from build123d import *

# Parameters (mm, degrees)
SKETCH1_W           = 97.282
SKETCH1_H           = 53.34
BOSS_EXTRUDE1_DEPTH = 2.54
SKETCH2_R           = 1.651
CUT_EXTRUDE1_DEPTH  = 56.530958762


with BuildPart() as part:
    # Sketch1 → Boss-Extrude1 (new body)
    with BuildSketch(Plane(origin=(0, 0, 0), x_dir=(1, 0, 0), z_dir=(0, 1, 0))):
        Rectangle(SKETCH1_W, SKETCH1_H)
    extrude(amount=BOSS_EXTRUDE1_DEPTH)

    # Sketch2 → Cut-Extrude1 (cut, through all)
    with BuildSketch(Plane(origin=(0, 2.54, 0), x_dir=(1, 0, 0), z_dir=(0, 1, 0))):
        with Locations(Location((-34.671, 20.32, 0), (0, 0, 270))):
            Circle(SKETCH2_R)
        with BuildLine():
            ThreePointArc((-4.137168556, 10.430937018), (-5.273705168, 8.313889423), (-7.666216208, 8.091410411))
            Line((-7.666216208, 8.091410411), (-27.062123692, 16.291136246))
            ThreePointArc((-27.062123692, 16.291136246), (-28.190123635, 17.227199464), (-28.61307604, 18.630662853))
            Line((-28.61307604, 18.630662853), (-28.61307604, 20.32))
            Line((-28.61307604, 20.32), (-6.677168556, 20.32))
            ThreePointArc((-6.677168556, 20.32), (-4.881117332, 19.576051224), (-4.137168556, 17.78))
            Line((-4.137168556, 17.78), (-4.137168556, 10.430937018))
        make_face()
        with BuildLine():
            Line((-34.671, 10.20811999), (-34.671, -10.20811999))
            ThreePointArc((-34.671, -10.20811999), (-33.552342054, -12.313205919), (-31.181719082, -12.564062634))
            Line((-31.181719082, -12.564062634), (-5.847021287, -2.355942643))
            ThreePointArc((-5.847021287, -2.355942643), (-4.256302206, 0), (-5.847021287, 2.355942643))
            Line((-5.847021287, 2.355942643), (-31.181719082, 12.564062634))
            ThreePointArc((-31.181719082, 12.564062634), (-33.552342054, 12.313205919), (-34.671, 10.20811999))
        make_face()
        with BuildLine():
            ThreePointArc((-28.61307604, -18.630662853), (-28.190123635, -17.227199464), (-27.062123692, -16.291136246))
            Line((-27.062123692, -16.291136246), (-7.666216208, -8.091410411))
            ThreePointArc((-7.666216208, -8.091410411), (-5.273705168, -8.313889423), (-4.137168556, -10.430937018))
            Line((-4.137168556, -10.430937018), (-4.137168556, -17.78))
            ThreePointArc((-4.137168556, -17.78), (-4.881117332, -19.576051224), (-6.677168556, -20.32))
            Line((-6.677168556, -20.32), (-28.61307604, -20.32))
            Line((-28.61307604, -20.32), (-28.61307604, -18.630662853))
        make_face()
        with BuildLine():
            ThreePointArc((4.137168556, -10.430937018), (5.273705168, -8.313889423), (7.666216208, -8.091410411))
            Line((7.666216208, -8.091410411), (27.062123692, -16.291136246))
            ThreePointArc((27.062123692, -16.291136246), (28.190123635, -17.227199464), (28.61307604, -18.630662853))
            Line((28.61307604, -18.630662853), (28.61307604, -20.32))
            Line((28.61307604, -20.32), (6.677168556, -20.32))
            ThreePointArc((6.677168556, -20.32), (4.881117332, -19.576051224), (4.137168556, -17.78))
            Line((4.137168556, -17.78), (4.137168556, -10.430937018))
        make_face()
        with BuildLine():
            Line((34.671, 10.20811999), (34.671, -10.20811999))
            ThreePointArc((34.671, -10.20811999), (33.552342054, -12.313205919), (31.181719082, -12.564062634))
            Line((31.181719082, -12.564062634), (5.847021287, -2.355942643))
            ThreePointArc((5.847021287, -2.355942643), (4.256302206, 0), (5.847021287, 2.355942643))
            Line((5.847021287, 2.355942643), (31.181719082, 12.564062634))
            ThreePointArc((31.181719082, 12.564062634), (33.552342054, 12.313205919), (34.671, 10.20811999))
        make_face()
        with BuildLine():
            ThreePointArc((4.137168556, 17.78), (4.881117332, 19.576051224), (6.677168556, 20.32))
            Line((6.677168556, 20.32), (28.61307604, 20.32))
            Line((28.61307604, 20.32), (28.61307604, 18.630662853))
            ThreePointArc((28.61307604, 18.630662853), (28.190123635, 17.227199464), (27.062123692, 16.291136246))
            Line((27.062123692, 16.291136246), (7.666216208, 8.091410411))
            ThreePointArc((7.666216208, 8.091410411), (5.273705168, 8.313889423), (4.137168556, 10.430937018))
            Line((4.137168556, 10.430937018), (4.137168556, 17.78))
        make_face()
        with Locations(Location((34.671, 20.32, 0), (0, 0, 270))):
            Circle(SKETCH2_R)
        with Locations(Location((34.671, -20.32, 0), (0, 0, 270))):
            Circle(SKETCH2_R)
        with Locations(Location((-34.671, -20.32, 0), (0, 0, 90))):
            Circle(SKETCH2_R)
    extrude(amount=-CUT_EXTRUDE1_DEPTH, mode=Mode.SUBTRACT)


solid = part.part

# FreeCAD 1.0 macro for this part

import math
import FreeCAD as App
import Part
import Sketcher
Q = App.Units.Quantity

doc = App.newDocument("Part")
body = doc.addObject("PartDesign::Body", "Body")

sketch1 = body.newObject("Sketcher::SketchObject", "Sketch")
sketch1.AttachmentSupport = (doc.getObject("XZ_Plane"), [""])
sketch1.MapMode = "FlatFace"
sketch1.addGeometry(Part.LineSegment(App.Vector(-49, -27, 0), App.Vector(-49, 27, 0)), False)
sketch1.addGeometry(Part.LineSegment(App.Vector(-49, 27, 0), App.Vector(49, 27, 0)), False)
sketch1.addGeometry(Part.LineSegment(App.Vector(49, 27, 0), App.Vector(49, -27, 0)), False)
sketch1.addGeometry(Part.LineSegment(App.Vector(49, -27, 0), App.Vector(-49, -27, 0)), False)
sketch1.addConstraint(Sketcher.Constraint("Coincident", 0, 2, 1, 1))
sketch1.addConstraint(Sketcher.Constraint("Coincident", 1, 2, 2, 1))
sketch1.addConstraint(Sketcher.Constraint("Coincident", 2, 2, 3, 1))
sketch1.addConstraint(Sketcher.Constraint("Coincident", 3, 2, 0, 1))
sketch1.addConstraint(Sketcher.Constraint("Vertical", 0))
sketch1.addConstraint(Sketcher.Constraint("Horizontal", 1))
sketch1.addConstraint(Sketcher.Constraint("Vertical", 2))
sketch1.addConstraint(Sketcher.Constraint("Horizontal", 3))
sketch1.addConstraint(Sketcher.Constraint("Symmetric", 0, 2, 2, 2, -1, 1))
sketch1.addConstraint(Sketcher.Constraint("DistanceY", 0, 1, 0, 2, Q("2.1 in")))
sketch1.addConstraint(Sketcher.Constraint("DistanceX", 1, 1, 1, 2, Q("3.83 in")))
pad1 = body.newObject("PartDesign::Pad", "Pad")
pad1.Profile = sketch1
pad1.Length = Q("0.1 in")
pad1.Reversed = True

sketch2 = body.newObject("Sketcher::SketchObject", "Sketch001")
sketch2.AttachmentSupport = (doc.getObject("XZ_Plane"), [""])
sketch2.MapMode = "FlatFace"
sketch2.AttachmentOffset = App.Placement(App.Vector(0, 0, -0.1 * 25.4), App.Rotation())
sketch2.addGeometry(Part.Circle(App.Vector(-34.7, -20.3, 0), App.Vector(0, 0, 1), 1.7), False)
sketch2.addGeometry(Part.ArcOfCircle(Part.Circle(App.Vector(-6.7, -10.4, 0), App.Vector(0, 0, 1), 2.5), math.radians(0), math.radians(113)), False)
sketch2.addGeometry(Part.LineSegment(App.Vector(-4.1, -10.4, 0), App.Vector(-4.1, -17.8, 0)), False)
sketch2.addGeometry(Part.ArcOfCircle(Part.Circle(App.Vector(-6.7, -17.8, 0), App.Vector(0, 0, 1), 2.5), math.radians(-90), math.radians(0)), False)
sketch2.addGeometry(Part.LineSegment(App.Vector(-6.7, -20.3, 0), App.Vector(-28.6, -20.3, 0)), False)
sketch2.addGeometry(Part.LineSegment(App.Vector(-28.6, -20.3, 0), App.Vector(-28.6, -18.6, 0)), False)
sketch2.addGeometry(Part.ArcOfCircle(Part.Circle(App.Vector(-26.1, -18.6, 0), App.Vector(0, 0, 1), 2.5), math.radians(113), math.radians(180)), False)
sketch2.addGeometry(Part.LineSegment(App.Vector(-27.1, -16.3, 0), App.Vector(-7.7, -8.1, 0)), False)
sketch2.addGeometry(Part.LineSegment(App.Vector(-34.7, -10.2, 0), App.Vector(-34.7, 10.2, 0)), False)
sketch2.addGeometry(Part.ArcOfCircle(Part.Circle(App.Vector(-32.1, 10.2, 0), App.Vector(0, 0, 1), 2.5), math.radians(68), math.radians(180)), False)
sketch2.addGeometry(Part.LineSegment(App.Vector(-31.2, 12.6, 0), App.Vector(-5.8, 2.4, 0)), False)
sketch2.addGeometry(Part.ArcOfCircle(Part.Circle(App.Vector(-6.8, 0, 0), App.Vector(0, 0, 1), 2.5), math.radians(-68), math.radians(68)), False)
sketch2.addGeometry(Part.LineSegment(App.Vector(-5.8, -2.4, 0), App.Vector(-31.2, -12.6, 0)), False)
sketch2.addGeometry(Part.ArcOfCircle(Part.Circle(App.Vector(-32.1, -10.2, 0), App.Vector(0, 0, 1), 2.5), math.radians(180), math.radians(292)), False)
sketch2.addGeometry(Part.ArcOfCircle(Part.Circle(App.Vector(-26.1, 18.6, 0), App.Vector(0, 0, 1), 2.5), math.radians(180), math.radians(247)), False)
sketch2.addGeometry(Part.LineSegment(App.Vector(-28.6, 18.6, 0), App.Vector(-28.6, 20.3, 0)), False)
sketch2.addGeometry(Part.LineSegment(App.Vector(-28.6, 20.3, 0), App.Vector(-6.7, 20.3, 0)), False)
sketch2.addGeometry(Part.ArcOfCircle(Part.Circle(App.Vector(-6.7, 17.8, 0), App.Vector(0, 0, 1), 2.5), math.radians(0), math.radians(90)), False)
sketch2.addGeometry(Part.LineSegment(App.Vector(-4.1, 17.8, 0), App.Vector(-4.1, 10.4, 0)), False)
sketch2.addGeometry(Part.ArcOfCircle(Part.Circle(App.Vector(-6.7, 10.4, 0), App.Vector(0, 0, 1), 2.5), math.radians(-113), math.radians(0)), False)
sketch2.addGeometry(Part.LineSegment(App.Vector(-7.7, 8.1, 0), App.Vector(-27.1, 16.3, 0)), False)
sketch2.addGeometry(Part.ArcOfCircle(Part.Circle(App.Vector(6.7, 10.4, 0), App.Vector(0, 0, 1), 2.5), math.radians(180), math.radians(293)), False)
sketch2.addGeometry(Part.LineSegment(App.Vector(4.1, 10.4, 0), App.Vector(4.1, 17.8, 0)), False)
sketch2.addGeometry(Part.ArcOfCircle(Part.Circle(App.Vector(6.7, 17.8, 0), App.Vector(0, 0, 1), 2.5), math.radians(90), math.radians(180)), False)
sketch2.addGeometry(Part.LineSegment(App.Vector(6.7, 20.3, 0), App.Vector(28.6, 20.3, 0)), False)
sketch2.addGeometry(Part.LineSegment(App.Vector(28.6, 20.3, 0), App.Vector(28.6, 18.6, 0)), False)
sketch2.addGeometry(Part.ArcOfCircle(Part.Circle(App.Vector(26.1, 18.6, 0), App.Vector(0, 0, 1), 2.5), math.radians(-67), math.radians(0)), False)
sketch2.addGeometry(Part.LineSegment(App.Vector(27.1, 16.3, 0), App.Vector(7.7, 8.1, 0)), False)
sketch2.addGeometry(Part.LineSegment(App.Vector(34.7, 10.2, 0), App.Vector(34.7, -10.2, 0)), False)
sketch2.addGeometry(Part.ArcOfCircle(Part.Circle(App.Vector(32.1, -10.2, 0), App.Vector(0, 0, 1), 2.5), math.radians(-112), math.radians(0)), False)
sketch2.addGeometry(Part.LineSegment(App.Vector(31.2, -12.6, 0), App.Vector(5.8, -2.4, 0)), False)
sketch2.addGeometry(Part.ArcOfCircle(Part.Circle(App.Vector(6.8, 0, 0), App.Vector(0, 0, 1), 2.5), math.radians(112), math.radians(248)), False)
sketch2.addGeometry(Part.LineSegment(App.Vector(5.8, 2.4, 0), App.Vector(31.2, 12.6, 0)), False)
sketch2.addGeometry(Part.ArcOfCircle(Part.Circle(App.Vector(32.1, 10.2, 0), App.Vector(0, 0, 1), 2.5), math.radians(0), math.radians(112)), False)
sketch2.addGeometry(Part.ArcOfCircle(Part.Circle(App.Vector(6.7, -17.8, 0), App.Vector(0, 0, 1), 2.5), math.radians(-180), math.radians(-90)), False)
sketch2.addGeometry(Part.LineSegment(App.Vector(4.1, -17.8, 0), App.Vector(4.1, -10.4, 0)), False)
sketch2.addGeometry(Part.ArcOfCircle(Part.Circle(App.Vector(6.7, -10.4, 0), App.Vector(0, 0, 1), 2.5), math.radians(67), math.radians(180)), False)
sketch2.addGeometry(Part.LineSegment(App.Vector(7.7, -8.1, 0), App.Vector(27.1, -16.3, 0)), False)
sketch2.addGeometry(Part.ArcOfCircle(Part.Circle(App.Vector(26.1, -18.6, 0), App.Vector(0, 0, 1), 2.5), math.radians(0), math.radians(67)), False)
sketch2.addGeometry(Part.LineSegment(App.Vector(28.6, -18.6, 0), App.Vector(28.6, -20.3, 0)), False)
sketch2.addGeometry(Part.LineSegment(App.Vector(28.6, -20.3, 0), App.Vector(6.7, -20.3, 0)), False)
sketch2.addGeometry(Part.Circle(App.Vector(34.7, -20.3, 0), App.Vector(0, 0, 1), 1.7), False)
sketch2.addGeometry(Part.Circle(App.Vector(34.7, 20.3, 0), App.Vector(0, 0, 1), 1.7), False)
sketch2.addGeometry(Part.Circle(App.Vector(-34.7, 20.3, 0), App.Vector(0, 0, 1), 1.7), False)
sketch2.addConstraint(Sketcher.Constraint("Tangent", 1, 1, 2, 1))
sketch2.addConstraint(Sketcher.Constraint("Tangent", 2, 2, 3, 2))
sketch2.addConstraint(Sketcher.Constraint("Tangent", 3, 1, 4, 1))
sketch2.addConstraint(Sketcher.Constraint("Coincident", 4, 2, 5, 1))
sketch2.addConstraint(Sketcher.Constraint("Tangent", 5, 2, 6, 2))
sketch2.addConstraint(Sketcher.Constraint("Tangent", 6, 1, 7, 1))
sketch2.addConstraint(Sketcher.Constraint("Tangent", 7, 2, 1, 2))
sketch2.addConstraint(Sketcher.Constraint("Tangent", 8, 2, 9, 2))
sketch2.addConstraint(Sketcher.Constraint("Tangent", 9, 1, 10, 1))
sketch2.addConstraint(Sketcher.Constraint("Tangent", 10, 2, 11, 2))
sketch2.addConstraint(Sketcher.Constraint("Tangent", 11, 1, 12, 1))
sketch2.addConstraint(Sketcher.Constraint("Tangent", 12, 2, 13, 2))
sketch2.addConstraint(Sketcher.Constraint("Tangent", 13, 1, 8, 1))
sketch2.addConstraint(Sketcher.Constraint("Tangent", 14, 1, 15, 1))
sketch2.addConstraint(Sketcher.Constraint("Coincident", 15, 2, 16, 1))
sketch2.addConstraint(Sketcher.Constraint("Tangent", 16, 2, 17, 2))
sketch2.addConstraint(Sketcher.Constraint("Tangent", 17, 1, 18, 1))
sketch2.addConstraint(Sketcher.Constraint("Tangent", 18, 2, 19, 2))
sketch2.addConstraint(Sketcher.Constraint("Tangent", 19, 1, 20, 1))
sketch2.addConstraint(Sketcher.Constraint("Tangent", 20, 2, 14, 2))
sketch2.addConstraint(Sketcher.Constraint("Tangent", 21, 1, 22, 1))
sketch2.addConstraint(Sketcher.Constraint("Tangent", 22, 2, 23, 2))
sketch2.addConstraint(Sketcher.Constraint("Tangent", 23, 1, 24, 1))
sketch2.addConstraint(Sketcher.Constraint("Coincident", 24, 2, 25, 1))
sketch2.addConstraint(Sketcher.Constraint("Tangent", 25, 2, 26, 2))
sketch2.addConstraint(Sketcher.Constraint("Tangent", 26, 1, 27, 1))
sketch2.addConstraint(Sketcher.Constraint("Tangent", 27, 2, 21, 2))
sketch2.addConstraint(Sketcher.Constraint("Tangent", 28, 2, 29, 2))
sketch2.addConstraint(Sketcher.Constraint("Tangent", 29, 1, 30, 1))
sketch2.addConstraint(Sketcher.Constraint("Tangent", 30, 2, 31, 2))
sketch2.addConstraint(Sketcher.Constraint("Tangent", 31, 1, 32, 1))
sketch2.addConstraint(Sketcher.Constraint("Tangent", 32, 2, 33, 2))
sketch2.addConstraint(Sketcher.Constraint("Tangent", 33, 1, 28, 1))
sketch2.addConstraint(Sketcher.Constraint("Tangent", 34, 1, 35, 1))
sketch2.addConstraint(Sketcher.Constraint("Tangent", 35, 2, 36, 2))
sketch2.addConstraint(Sketcher.Constraint("Tangent", 36, 1, 37, 1))
sketch2.addConstraint(Sketcher.Constraint("Tangent", 37, 2, 38, 2))
sketch2.addConstraint(Sketcher.Constraint("Tangent", 38, 1, 39, 1))
sketch2.addConstraint(Sketcher.Constraint("Coincident", 39, 2, 40, 1))
sketch2.addConstraint(Sketcher.Constraint("Tangent", 40, 2, 34, 2))
sketch2.addConstraint(Sketcher.Constraint("Vertical", 2))
sketch2.addConstraint(Sketcher.Constraint("Horizontal", 4))
sketch2.addConstraint(Sketcher.Constraint("Vertical", 5))
sketch2.addConstraint(Sketcher.Constraint("Vertical", 8))
sketch2.addConstraint(Sketcher.Constraint("Vertical", 15))
sketch2.addConstraint(Sketcher.Constraint("Horizontal", 16))
sketch2.addConstraint(Sketcher.Constraint("Vertical", 18))
sketch2.addConstraint(Sketcher.Constraint("Vertical", 22))
sketch2.addConstraint(Sketcher.Constraint("Horizontal", 24))
sketch2.addConstraint(Sketcher.Constraint("Vertical", 25))
sketch2.addConstraint(Sketcher.Constraint("Vertical", 28))
sketch2.addConstraint(Sketcher.Constraint("Vertical", 35))
sketch2.addConstraint(Sketcher.Constraint("Vertical", 39))
sketch2.addConstraint(Sketcher.Constraint("Horizontal", 40))
sketch2.addConstraint(Sketcher.Constraint("Equal", 1, 3))
sketch2.addConstraint(Sketcher.Constraint("Equal", 3, 6))
sketch2.addConstraint(Sketcher.Constraint("Equal", 6, 9))
sketch2.addConstraint(Sketcher.Constraint("Equal", 9, 11))
sketch2.addConstraint(Sketcher.Constraint("Equal", 11, 13))
sketch2.addConstraint(Sketcher.Constraint("Equal", 13, 14))
sketch2.addConstraint(Sketcher.Constraint("Equal", 14, 17))
sketch2.addConstraint(Sketcher.Constraint("Equal", 17, 19))
sketch2.addConstraint(Sketcher.Constraint("Equal", 19, 21))
sketch2.addConstraint(Sketcher.Constraint("Equal", 21, 23))
sketch2.addConstraint(Sketcher.Constraint("Equal", 23, 26))
sketch2.addConstraint(Sketcher.Constraint("Equal", 26, 29))
sketch2.addConstraint(Sketcher.Constraint("Equal", 29, 31))
sketch2.addConstraint(Sketcher.Constraint("Equal", 31, 33))
sketch2.addConstraint(Sketcher.Constraint("Equal", 33, 34))
sketch2.addConstraint(Sketcher.Constraint("Equal", 34, 36))
sketch2.addConstraint(Sketcher.Constraint("Equal", 36, 38))
sketch2.addConstraint(Sketcher.Constraint("Equal", 0, 41))
sketch2.addConstraint(Sketcher.Constraint("Equal", 41, 42))
sketch2.addConstraint(Sketcher.Constraint("Equal", 42, 43))
sketch2.addConstraint(Sketcher.Constraint("Symmetric", 1, 3, 21, 3, -1, 1))
sketch2.addConstraint(Sketcher.Constraint("Symmetric", 6, 3, 26, 3, -1, 1))
sketch2.addConstraint(Sketcher.Constraint("Symmetric", 9, 3, 29, 3, -1, 1))
sketch2.addConstraint(Sketcher.Constraint("Symmetric", 11, 3, 31, 3, -1, 1))
sketch2.addConstraint(Sketcher.Constraint("Symmetric", 17, 3, 34, 3, -1, 1))
sketch2.addConstraint(Sketcher.Constraint("Symmetric", 14, 3, 38, 3, -1, 1))
sketch2.addConstraint(Sketcher.Constraint("Symmetric", 0, 3, 42, 3, -1, 1))
sketch2.addConstraint(Sketcher.Constraint("Symmetric", 41, 3, 43, 3, -1, 1))
sketch2.addConstraint(Sketcher.Constraint("Symmetric", 19, 3, 21, 3, -2))
sketch2.addConstraint(Sketcher.Constraint("Symmetric", 14, 3, 26, 3, -2))
sketch2.addConstraint(Sketcher.Constraint("Symmetric", 0, 3, 41, 3, -2))
sketch2.addConstraint(Sketcher.Constraint("Symmetric", 12, 2, 29, 1, -2))
sketch2.addConstraint(Sketcher.Constraint("Parallel", 12, 32))
sketch2.addConstraint(Sketcher.Constraint("Parallel", 20, 37))
sketch2.addConstraint(Sketcher.Constraint("Horizontal", 17, 3, 23, 3))
sketch2.addConstraint(Sketcher.Constraint("Horizontal", 3, 3, 34, 3))
sketch2.addConstraint(Sketcher.Constraint("Horizontal", 41, 3, 3, 1))
sketch2.addConstraint(Sketcher.Constraint("Vertical", 43, 3, 8, 2))
sketch2.addConstraint(Sketcher.Constraint("Radius", 1, Q("0.1 in")))
sketch2.addConstraint(Sketcher.Constraint("Diameter", 0, Q("0.13 in")))
sketch2.addConstraint(Sketcher.Constraint("DistanceY", 0, 3, -1, 1, Q("0.8 in")))
sketch2.addConstraint(Sketcher.Constraint("DistanceX", 0, 3, -1, 1, Q("1.365 in")))
sketch2.addConstraint(Sketcher.Constraint("DistanceY", 8, 1, 8, 2, 20.41624))
sketch2.addConstraint(Sketcher.Constraint("DistanceX", 4, 2, 4, 1, 21.935907))
sketch2.addConstraint(Sketcher.Constraint("DistanceY", 2, 2, 2, 1, 7.349063))
sketch2.addConstraint(Sketcher.Constraint("DistanceY", 5, 1, 5, 2, 1.689337))
sketch2.addConstraint(Sketcher.Constraint("DistanceX", 1, 3, -1, 1, 6.677169))
sketch2.addConstraint(Sketcher.Constraint("DistanceX", 9, 1, -1, 1, 31.181719))
pocket1 = body.newObject("PartDesign::Pocket", "Pocket")
pocket1.Profile = sketch2
pocket1.Type = "ThroughAll"
pocket1.Reversed = True

doc.recompute()
